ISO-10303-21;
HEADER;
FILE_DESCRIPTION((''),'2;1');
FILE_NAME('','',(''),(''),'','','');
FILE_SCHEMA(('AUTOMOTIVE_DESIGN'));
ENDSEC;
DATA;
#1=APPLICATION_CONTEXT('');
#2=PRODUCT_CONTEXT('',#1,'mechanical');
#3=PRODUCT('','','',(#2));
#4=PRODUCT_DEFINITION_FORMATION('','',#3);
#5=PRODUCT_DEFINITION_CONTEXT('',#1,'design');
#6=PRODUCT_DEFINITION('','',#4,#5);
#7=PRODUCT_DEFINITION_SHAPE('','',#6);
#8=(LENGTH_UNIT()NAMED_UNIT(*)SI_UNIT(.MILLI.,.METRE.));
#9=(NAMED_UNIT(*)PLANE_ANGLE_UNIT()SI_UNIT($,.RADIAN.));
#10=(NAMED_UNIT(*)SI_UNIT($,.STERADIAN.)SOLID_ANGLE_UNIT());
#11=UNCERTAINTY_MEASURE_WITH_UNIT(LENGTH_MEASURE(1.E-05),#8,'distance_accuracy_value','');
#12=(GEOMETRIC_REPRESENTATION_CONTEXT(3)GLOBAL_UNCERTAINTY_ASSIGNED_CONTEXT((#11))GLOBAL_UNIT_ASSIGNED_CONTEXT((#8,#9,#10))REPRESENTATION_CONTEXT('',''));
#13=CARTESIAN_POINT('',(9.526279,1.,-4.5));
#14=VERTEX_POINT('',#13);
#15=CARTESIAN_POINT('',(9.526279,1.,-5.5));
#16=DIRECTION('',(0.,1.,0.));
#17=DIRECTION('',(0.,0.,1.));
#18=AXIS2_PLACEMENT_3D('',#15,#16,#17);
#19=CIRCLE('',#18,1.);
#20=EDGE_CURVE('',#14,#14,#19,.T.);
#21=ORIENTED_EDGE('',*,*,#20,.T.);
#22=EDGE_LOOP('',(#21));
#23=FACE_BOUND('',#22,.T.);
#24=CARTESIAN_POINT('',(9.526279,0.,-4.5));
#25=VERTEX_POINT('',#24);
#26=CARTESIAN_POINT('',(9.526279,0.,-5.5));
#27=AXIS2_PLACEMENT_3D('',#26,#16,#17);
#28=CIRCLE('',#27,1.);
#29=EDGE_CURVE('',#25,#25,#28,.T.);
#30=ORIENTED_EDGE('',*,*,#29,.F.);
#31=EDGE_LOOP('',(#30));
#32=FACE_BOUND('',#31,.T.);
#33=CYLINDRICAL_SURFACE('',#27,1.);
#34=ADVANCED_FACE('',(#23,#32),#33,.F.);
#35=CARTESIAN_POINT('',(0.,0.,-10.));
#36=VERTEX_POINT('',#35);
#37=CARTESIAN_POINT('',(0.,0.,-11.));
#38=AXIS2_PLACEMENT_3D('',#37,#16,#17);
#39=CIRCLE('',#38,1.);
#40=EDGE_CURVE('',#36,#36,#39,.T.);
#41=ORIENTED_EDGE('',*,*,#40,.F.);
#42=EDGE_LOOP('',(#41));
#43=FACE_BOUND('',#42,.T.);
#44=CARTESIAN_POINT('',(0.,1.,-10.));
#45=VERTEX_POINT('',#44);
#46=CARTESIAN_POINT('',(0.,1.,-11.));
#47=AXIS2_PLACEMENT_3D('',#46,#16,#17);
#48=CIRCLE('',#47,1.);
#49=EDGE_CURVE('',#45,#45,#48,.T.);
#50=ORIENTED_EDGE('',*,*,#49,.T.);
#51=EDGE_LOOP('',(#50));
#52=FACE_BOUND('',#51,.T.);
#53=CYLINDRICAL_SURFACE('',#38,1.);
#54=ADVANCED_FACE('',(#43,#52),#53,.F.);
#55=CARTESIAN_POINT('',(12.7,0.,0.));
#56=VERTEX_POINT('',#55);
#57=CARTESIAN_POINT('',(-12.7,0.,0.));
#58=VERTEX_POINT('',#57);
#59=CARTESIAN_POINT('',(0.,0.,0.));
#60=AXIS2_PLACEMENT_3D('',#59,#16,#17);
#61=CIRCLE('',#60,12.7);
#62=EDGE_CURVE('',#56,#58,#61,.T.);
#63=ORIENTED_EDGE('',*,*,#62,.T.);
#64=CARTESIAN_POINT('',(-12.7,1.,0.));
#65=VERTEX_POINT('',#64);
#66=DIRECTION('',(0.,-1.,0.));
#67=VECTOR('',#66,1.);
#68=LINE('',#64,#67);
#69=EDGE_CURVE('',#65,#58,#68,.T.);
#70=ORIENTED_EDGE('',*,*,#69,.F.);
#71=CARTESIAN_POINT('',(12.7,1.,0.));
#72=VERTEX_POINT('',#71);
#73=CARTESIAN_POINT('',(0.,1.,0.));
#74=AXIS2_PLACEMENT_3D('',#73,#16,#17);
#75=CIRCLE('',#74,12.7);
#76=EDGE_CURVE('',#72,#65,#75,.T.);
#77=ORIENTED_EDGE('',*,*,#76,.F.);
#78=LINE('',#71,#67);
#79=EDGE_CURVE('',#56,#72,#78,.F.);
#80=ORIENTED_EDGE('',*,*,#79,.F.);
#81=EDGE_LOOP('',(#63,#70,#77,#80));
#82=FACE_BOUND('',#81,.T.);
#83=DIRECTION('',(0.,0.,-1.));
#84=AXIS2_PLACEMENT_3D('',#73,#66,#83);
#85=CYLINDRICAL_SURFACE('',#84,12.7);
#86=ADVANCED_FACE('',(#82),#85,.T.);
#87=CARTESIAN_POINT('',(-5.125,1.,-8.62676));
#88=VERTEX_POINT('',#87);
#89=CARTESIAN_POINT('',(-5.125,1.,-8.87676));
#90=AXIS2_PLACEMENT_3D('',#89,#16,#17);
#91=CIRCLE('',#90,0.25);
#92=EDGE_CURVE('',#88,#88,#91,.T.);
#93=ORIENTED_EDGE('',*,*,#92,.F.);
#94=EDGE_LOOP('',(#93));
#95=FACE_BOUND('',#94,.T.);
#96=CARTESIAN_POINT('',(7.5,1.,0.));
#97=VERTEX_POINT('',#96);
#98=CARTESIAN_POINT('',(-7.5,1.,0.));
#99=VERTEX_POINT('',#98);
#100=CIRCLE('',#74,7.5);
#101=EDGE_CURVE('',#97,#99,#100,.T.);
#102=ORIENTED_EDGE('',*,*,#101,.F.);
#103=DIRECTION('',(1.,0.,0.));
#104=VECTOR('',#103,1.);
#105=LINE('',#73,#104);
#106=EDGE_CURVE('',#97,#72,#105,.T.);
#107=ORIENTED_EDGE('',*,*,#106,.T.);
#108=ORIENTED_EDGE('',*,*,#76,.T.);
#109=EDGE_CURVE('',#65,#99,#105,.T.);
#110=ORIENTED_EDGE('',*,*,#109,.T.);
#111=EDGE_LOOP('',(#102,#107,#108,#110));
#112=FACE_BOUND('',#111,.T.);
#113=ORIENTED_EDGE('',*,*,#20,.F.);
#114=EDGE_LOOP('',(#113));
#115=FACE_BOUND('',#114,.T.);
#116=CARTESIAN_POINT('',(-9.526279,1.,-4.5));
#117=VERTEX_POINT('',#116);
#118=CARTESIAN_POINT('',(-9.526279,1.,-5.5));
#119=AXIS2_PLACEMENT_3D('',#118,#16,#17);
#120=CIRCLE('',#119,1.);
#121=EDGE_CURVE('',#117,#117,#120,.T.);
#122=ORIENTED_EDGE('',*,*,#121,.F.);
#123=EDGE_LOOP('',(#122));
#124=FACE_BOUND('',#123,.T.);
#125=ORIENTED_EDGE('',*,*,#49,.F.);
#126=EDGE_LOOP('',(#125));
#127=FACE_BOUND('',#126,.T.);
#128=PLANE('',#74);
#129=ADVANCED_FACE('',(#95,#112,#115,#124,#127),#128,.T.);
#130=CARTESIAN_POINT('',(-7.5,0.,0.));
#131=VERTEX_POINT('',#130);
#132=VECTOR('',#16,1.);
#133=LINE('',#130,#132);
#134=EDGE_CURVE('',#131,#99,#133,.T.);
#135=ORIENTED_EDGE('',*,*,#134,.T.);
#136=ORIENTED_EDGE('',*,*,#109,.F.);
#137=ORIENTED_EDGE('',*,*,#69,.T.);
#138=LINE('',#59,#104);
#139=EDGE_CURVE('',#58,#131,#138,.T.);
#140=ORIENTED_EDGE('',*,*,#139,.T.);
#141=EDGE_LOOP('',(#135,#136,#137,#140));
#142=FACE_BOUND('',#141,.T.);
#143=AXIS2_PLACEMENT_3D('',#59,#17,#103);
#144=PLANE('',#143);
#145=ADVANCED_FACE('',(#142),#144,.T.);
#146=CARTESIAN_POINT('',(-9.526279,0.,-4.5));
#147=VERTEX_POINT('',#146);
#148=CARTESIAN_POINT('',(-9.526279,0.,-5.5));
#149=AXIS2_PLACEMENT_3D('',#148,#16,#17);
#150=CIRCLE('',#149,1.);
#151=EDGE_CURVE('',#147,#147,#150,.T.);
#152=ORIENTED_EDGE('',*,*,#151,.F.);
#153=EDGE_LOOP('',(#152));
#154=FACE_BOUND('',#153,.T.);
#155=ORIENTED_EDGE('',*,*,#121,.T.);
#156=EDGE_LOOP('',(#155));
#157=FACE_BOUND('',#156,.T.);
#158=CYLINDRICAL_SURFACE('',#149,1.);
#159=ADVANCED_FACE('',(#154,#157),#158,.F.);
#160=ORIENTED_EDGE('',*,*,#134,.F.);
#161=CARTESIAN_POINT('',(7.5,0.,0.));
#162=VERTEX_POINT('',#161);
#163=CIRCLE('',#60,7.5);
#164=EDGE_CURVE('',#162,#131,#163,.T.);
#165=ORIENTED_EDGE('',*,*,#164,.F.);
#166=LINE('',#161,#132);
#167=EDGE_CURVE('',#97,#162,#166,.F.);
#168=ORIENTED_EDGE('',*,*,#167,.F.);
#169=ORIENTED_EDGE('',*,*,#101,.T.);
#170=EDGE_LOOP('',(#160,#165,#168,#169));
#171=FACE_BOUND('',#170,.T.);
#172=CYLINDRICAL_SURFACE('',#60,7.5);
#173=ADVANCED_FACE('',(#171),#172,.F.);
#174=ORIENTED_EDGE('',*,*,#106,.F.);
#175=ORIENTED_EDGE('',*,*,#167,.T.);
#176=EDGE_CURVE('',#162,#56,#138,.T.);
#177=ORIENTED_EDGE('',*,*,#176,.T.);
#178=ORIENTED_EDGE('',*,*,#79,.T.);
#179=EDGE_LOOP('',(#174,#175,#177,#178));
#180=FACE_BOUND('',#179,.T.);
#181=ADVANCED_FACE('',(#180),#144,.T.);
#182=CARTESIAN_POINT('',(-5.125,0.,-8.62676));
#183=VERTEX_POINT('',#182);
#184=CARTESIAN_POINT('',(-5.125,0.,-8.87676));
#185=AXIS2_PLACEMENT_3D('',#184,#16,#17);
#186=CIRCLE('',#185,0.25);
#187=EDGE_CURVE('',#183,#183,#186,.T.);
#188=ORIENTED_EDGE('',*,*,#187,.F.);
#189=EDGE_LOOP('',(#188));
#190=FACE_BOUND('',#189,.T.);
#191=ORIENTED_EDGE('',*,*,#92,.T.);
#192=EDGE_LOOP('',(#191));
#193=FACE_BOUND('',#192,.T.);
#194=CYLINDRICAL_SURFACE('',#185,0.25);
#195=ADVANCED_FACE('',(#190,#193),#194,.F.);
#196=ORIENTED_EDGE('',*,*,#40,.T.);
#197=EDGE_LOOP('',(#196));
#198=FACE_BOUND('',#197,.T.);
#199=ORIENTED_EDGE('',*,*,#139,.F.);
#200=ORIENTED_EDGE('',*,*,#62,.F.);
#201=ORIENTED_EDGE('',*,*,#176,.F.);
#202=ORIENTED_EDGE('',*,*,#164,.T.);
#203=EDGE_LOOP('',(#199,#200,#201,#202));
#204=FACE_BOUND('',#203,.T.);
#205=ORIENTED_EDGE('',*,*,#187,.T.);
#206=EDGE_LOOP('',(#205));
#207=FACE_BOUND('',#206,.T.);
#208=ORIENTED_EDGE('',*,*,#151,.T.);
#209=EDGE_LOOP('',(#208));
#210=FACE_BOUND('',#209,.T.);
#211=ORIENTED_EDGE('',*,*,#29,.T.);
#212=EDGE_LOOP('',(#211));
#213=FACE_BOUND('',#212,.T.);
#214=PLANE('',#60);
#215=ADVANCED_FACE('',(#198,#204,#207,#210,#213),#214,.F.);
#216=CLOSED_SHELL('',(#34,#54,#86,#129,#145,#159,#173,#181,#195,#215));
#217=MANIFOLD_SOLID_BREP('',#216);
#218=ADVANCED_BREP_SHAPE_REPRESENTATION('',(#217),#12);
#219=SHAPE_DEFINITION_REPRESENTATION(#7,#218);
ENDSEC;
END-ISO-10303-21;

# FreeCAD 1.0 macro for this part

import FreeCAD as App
import Part
import Sketcher

V = App.Vector
Q = App.Units.Quantity


def add_polygon(sketch, points):
    """Adds a closed chain of lines whose ends are joined by coincident constraints."""
    first, n = sketch.GeometryCount, len(points)
    for a, b in zip(points, points[1:] + points[:1]):
        sketch.addGeometry(Part.LineSegment(App.Vector(*a, 0), App.Vector(*b, 0)), False)
    for i in range(n):
        sketch.addConstraint(Sketcher.Constraint("Coincident", first + i, 2, first + (i + 1) % n, 1))

doc = App.newDocument("Part")
body = doc.addObject("PartDesign::Body", "Body")

sketch1 = doc.addObject("Sketcher::SketchObject", "Sketch")
body.addObject(sketch1)
sketch1.AttachmentSupport = (doc.XZ_Plane, [""])
sketch1.MapMode = "FlatFace"
sketch1.addGeometry(Part.Circle(V(0, 0, 0), V(0, 0, 1), 13), False)
sketch1.addConstraint([
    Sketcher.Constraint("Coincident", 0, 3, -1, 1),
    Sketcher.Constraint("Diameter", 0, Q("25.4 mm")),
])
pad1 = doc.addObject("PartDesign::Pad", "Pad")
body.addObject(pad1)
pad1.Profile = sketch1
pad1.Length = 1
pad1.Reversed = True

sketch2 = doc.addObject("Sketcher::SketchObject", "Sketch001")
body.addObject(sketch2)
sketch2.AttachmentSupport = (doc.XZ_Plane, [""])
sketch2.MapMode = "FlatFace"
sketch2.AttachmentOffset = App.Placement(V(0, 0, -1), App.Rotation())
sketch2.addGeometry([
    Part.Circle(V(0, -11, 0), V(0, 0, 1), 1),
    Part.Circle(V(9.5, -5.5, 0), V(0, 0, 1), 1),
    Part.Circle(V(9.5, 5.5, 0), V(0, 0, 1), 1),
    Part.Circle(V(0, 11, 0), V(0, 0, 1), 1),
    Part.Circle(V(-9.5, 5.5, 0), V(0, 0, 1), 1),
    Part.Circle(V(-9.5, -5.5, 0), V(0, 0, 1), 1),
], False)
sketch2.addConstraint([
    Sketcher.Constraint("Equal", 0, 1),
    Sketcher.Constraint("Equal", 1, 2),
    Sketcher.Constraint("Equal", 2, 3),
    Sketcher.Constraint("Equal", 3, 4),
    Sketcher.Constraint("Equal", 4, 5),
    Sketcher.Constraint("Symmetric", 0, 3, 3, 3, -1, 1),
    Sketcher.Constraint("Symmetric", 1, 3, 4, 3, -1, 1),
    Sketcher.Constraint("Symmetric", 2, 3, 5, 3, -1, 1),
    Sketcher.Constraint("Symmetric", 2, 3, 4, 3, -2),
    Sketcher.Constraint("PointOnObject", 0, 3, -2),
    Sketcher.Constraint("Diameter", 0, Q("2 mm")),
    Sketcher.Constraint("DistanceY", 0, 3, -1, 1, Q("11 mm")),
    Sketcher.Constraint("DistanceY", 1, 3, 2, 3, Q("11 mm")),
    Sketcher.Constraint("DistanceX", -1, 1, 1, 3, Q("9.526279 mm")),
])
pocket1 = doc.addObject("PartDesign::Pocket", "Pocket")
body.addObject(pocket1)
pocket1.Profile = sketch2
pocket1.Type = "ThroughAll"
pocket1.Midplane = True

sketch3 = doc.addObject("Sketcher::SketchObject", "Sketch002")
body.addObject(sketch3)
sketch3.AttachmentSupport = (doc.XZ_Plane, [""])
sketch3.MapMode = "FlatFace"
sketch3.AttachmentOffset = App.Placement(V(0, 0, -1), App.Rotation())
sketch3.addGeometry(Part.Circle(V(0, 0, 0), V(0, 0, 1), 8), False)
sketch3.addConstraint([
    Sketcher.Constraint("Coincident", 0, 3, -1, 1),
    Sketcher.Constraint("Diameter", 0, Q("15 mm")),
])
pocket2 = doc.addObject("PartDesign::Pocket", "Pocket001")
body.addObject(pocket2)
pocket2.Profile = sketch3
pocket2.Type = "ThroughAll"
pocket2.Midplane = True

sketch4 = doc.addObject("Sketcher::SketchObject", "Sketch003")
body.addObject(sketch4)
sketch4.AttachmentSupport = (doc.XY_Plane, [""])
sketch4.MapMode = "FlatFace"
add_polygon(sketch4, [(-37, 32), (-37, -20), (29, -20), (29, 32)])
sketch4.addConstraint([
    Sketcher.Constraint("Vertical", 0),
    Sketcher.Constraint("Horizontal", 1),
    Sketcher.Constraint("Vertical", 2),
    Sketcher.Constraint("Horizontal", 3),
    Sketcher.Constraint("DistanceX", 1, 1, 1, 2, Q("65.874202 mm")),
    Sketcher.Constraint("DistanceY", 0, 2, 0, 1, Q("51.979274 mm")),
    Sketcher.Constraint("DistanceY", 0, 2, -1, 1, Q("19.66799 mm")),
    Sketcher.Constraint("DistanceX", 0, 2, -1, 1, Q("36.753256 mm")),
])
pocket3 = doc.addObject("PartDesign::Pocket", "Pocket002")
body.addObject(pocket3)
pocket3.Profile = sketch4
pocket3.Type = "ThroughAll"
pocket3.Reversed = True

sketch5 = doc.addObject("Sketcher::SketchObject", "Sketch004")
body.addObject(sketch5)
sketch5.AttachmentSupport = (doc.XZ_Plane, [""])
sketch5.MapMode = "FlatFace"
sketch5.AttachmentOffset = App.Placement(V(0, 0, -1), App.Rotation())
sketch5.addGeometry(Part.Circle(V(-5.12, -8.88, 0), V(0, 0, 1), 0.25), False)
sketch5.addConstraint([
    Sketcher.Constraint("Diameter", 0, Q("0.5 mm")),
    Sketcher.Constraint("DistanceX", 0, 3, -1, 1, Q("5.125 mm")),
    Sketcher.Constraint("DistanceY", 0, 3, -1, 1, Q("8.87676 mm")),
])
pocket4 = doc.addObject("PartDesign::Pocket", "Pocket003")
body.addObject(pocket4)
pocket4.Profile = sketch5
pocket4.Type = "ThroughAll"
pocket4.Midplane = True

doc.recompute()
